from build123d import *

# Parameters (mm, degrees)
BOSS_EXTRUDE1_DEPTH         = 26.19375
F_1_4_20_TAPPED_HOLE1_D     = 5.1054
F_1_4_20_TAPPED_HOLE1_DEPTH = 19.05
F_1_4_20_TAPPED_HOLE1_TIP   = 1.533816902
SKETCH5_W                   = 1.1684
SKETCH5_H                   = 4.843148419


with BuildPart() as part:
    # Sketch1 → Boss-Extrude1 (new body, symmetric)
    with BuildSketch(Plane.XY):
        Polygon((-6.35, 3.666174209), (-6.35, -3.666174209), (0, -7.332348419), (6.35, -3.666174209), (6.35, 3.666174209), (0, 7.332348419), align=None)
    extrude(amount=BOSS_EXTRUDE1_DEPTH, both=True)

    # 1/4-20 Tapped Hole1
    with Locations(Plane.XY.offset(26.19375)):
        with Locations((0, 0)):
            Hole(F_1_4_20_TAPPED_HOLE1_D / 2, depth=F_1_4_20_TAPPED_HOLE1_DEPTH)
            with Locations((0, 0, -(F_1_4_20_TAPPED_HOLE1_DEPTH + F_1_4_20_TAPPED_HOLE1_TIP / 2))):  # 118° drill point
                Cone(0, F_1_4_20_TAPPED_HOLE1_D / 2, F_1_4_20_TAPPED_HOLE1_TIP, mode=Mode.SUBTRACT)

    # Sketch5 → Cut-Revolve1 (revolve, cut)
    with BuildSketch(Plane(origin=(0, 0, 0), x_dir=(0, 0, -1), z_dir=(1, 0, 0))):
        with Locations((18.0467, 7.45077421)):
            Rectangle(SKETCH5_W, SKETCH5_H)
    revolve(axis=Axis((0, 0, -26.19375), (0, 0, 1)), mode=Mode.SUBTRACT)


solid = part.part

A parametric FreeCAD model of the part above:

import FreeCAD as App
import Part
import Sketcher
from FreeCAD import Vector
Q = App.Units.Quantity

doc = App.newDocument("Part")
body = doc.addObject("PartDesign::Body", "Body")

# Sketch on XY plane
sketch1 = doc.addObject("Sketcher::SketchObject", "Sketch")
body.addObject(sketch1)
sketch1.AttachmentSupport = (doc.XY_Plane, [""])
sketch1.MapMode = "FlatFace"
sketch1.addGeometry([
    Part.LineSegment(Vector(-6.35, 3.666174, 0), Vector(-6.35, -3.666174, 0)),  # 0
    Part.LineSegment(Vector(-6.35, -3.666174, 0), Vector(0, -7.332348, 0)),  # 1
    Part.LineSegment(Vector(0, -7.332348, 0), Vector(6.35, -3.666174, 0)),  # 2
    Part.LineSegment(Vector(6.35, -3.666174, 0), Vector(6.35, 3.666174, 0)),  # 3
    Part.LineSegment(Vector(6.35, 3.666174, 0), Vector(0, 7.332348, 0)),  # 4
    Part.LineSegment(Vector(0, 7.332348, 0), Vector(-6.35, 3.666174, 0)),  # 5
], False)
sketch1.addConstraint([
    Sketcher.Constraint("Coincident", 0, 2, 1, 1),
    Sketcher.Constraint("Coincident", 1, 2, 2, 1),
    Sketcher.Constraint("Coincident", 2, 2, 3, 1),
    Sketcher.Constraint("Coincident", 3, 2, 4, 1),
    Sketcher.Constraint("Coincident", 4, 2, 5, 1),
    Sketcher.Constraint("Coincident", 5, 2, 0, 1),
    Sketcher.Constraint("Vertical", 0),
    Sketcher.Constraint("Vertical", 3),
    Sketcher.Constraint("Symmetric", 0, 2, 3, 2, -1, 1),
    Sketcher.Constraint("Symmetric", 1, 2, 4, 2, -1, 1),
    Sketcher.Constraint("PointOnObject", 1, 2, -2),
    Sketcher.Constraint("Parallel", 2, 5),
    Sketcher.Constraint("Horizontal", 0, 2, 2, 2),
    Sketcher.Constraint("Angle", 1, Q("-30 deg")),
    Sketcher.Constraint("DistanceX", 0, 2, 2, 2, Q("0.5 in")),
    Sketcher.Constraint("DistanceY", 0, 2, 0, 1, Q("7.332348 mm")),
])
pad1 = doc.addObject("PartDesign::Pad", "Pad")
body.addObject(pad1)
pad1.Profile = sketch1
pad1.Length = Q("2.0625 in")
pad1.Midplane = True

# Sketch on XY plane
sketch2 = doc.addObject("Sketcher::SketchObject", "Sketch001")
body.addObject(sketch2)
sketch2.AttachmentSupport = (doc.XY_Plane, [""])
sketch2.MapMode = "FlatFace"
sketch2.AttachmentOffset = App.Placement(Vector(0, 0, 1.03125 * 25.4), App.Rotation())
sketch2.addGeometry(Part.Circle(Vector(0, 0, 0), Vector(0, 0, 1), 2.5527), False)
sketch2.addConstraint([
    Sketcher.Constraint("Coincident", 0, 3, -1, 1),
    Sketcher.Constraint("Diameter", 0, Q("0.201 in")),
])
doc.recompute()
hole = doc.addObject("PartDesign::Hole", "Hole")
body.addObject(hole)
hole.Profile = sketch2
hole.ThreadType = "None"
hole.Diameter = Q("0.201 in")
hole.DepthType = "Dimension"
hole.Depth = Q("0.75 in")
hole.DrillPoint = "Angled"
hole.DrillPointAngle = 118

# Sketch on YZ plane
sketch3 = doc.addObject("Sketcher::SketchObject", "Sketch002")
body.addObject(sketch3)
sketch3.AttachmentSupport = (doc.YZ_Plane, [""])
sketch3.MapMode = "FlatFace"
sketch3.addGeometry([
    Part.LineSegment(Vector(9.872348, -17.4625, 0), Vector(5.0292, -17.4625, 0)),
    Part.LineSegment(Vector(5.0292, -17.4625, 0), Vector(5.0292, -18.6309, 0)),
    Part.LineSegment(Vector(5.0292, -18.6309, 0), Vector(9.872348, -18.6309, 0)),
    Part.LineSegment(Vector(9.872348, -18.6309, 0), Vector(9.872348, -17.4625, 0)),
], False)
sketch3.addConstraint([
    Sketcher.Constraint("Coincident", 0, 2, 1, 1),
    Sketcher.Constraint("Coincident", 1, 2, 2, 1),
    Sketcher.Constraint("Coincident", 2, 2, 3, 1),
    Sketcher.Constraint("Coincident", 3, 2, 0, 1),
    Sketcher.Constraint("Horizontal", 0),
    Sketcher.Constraint("Vertical", 1),
    Sketcher.Constraint("Horizontal", 2),
    Sketcher.Constraint("Vertical", 3),
    Sketcher.Constraint("DistanceY", 1, 2, 1, 1, Q("0.046 in")),
    Sketcher.Constraint("DistanceX", -1, 1, 0, 2, Q("0.198 in")),
    Sketcher.Constraint("DistanceY", 0, 2, -1, 1, Q("0.6875 in")),
    Sketcher.Constraint("DistanceX", 0, 2, 0, 1, Q("4.843148 mm")),
])
groove = doc.addObject("PartDesign::Groove", "Groove")
body.addObject(groove)
groove.Profile = sketch3
groove.ReferenceAxis = (sketch3, ["V_Axis"])
groove.Angle = 360

doc.recompute()
